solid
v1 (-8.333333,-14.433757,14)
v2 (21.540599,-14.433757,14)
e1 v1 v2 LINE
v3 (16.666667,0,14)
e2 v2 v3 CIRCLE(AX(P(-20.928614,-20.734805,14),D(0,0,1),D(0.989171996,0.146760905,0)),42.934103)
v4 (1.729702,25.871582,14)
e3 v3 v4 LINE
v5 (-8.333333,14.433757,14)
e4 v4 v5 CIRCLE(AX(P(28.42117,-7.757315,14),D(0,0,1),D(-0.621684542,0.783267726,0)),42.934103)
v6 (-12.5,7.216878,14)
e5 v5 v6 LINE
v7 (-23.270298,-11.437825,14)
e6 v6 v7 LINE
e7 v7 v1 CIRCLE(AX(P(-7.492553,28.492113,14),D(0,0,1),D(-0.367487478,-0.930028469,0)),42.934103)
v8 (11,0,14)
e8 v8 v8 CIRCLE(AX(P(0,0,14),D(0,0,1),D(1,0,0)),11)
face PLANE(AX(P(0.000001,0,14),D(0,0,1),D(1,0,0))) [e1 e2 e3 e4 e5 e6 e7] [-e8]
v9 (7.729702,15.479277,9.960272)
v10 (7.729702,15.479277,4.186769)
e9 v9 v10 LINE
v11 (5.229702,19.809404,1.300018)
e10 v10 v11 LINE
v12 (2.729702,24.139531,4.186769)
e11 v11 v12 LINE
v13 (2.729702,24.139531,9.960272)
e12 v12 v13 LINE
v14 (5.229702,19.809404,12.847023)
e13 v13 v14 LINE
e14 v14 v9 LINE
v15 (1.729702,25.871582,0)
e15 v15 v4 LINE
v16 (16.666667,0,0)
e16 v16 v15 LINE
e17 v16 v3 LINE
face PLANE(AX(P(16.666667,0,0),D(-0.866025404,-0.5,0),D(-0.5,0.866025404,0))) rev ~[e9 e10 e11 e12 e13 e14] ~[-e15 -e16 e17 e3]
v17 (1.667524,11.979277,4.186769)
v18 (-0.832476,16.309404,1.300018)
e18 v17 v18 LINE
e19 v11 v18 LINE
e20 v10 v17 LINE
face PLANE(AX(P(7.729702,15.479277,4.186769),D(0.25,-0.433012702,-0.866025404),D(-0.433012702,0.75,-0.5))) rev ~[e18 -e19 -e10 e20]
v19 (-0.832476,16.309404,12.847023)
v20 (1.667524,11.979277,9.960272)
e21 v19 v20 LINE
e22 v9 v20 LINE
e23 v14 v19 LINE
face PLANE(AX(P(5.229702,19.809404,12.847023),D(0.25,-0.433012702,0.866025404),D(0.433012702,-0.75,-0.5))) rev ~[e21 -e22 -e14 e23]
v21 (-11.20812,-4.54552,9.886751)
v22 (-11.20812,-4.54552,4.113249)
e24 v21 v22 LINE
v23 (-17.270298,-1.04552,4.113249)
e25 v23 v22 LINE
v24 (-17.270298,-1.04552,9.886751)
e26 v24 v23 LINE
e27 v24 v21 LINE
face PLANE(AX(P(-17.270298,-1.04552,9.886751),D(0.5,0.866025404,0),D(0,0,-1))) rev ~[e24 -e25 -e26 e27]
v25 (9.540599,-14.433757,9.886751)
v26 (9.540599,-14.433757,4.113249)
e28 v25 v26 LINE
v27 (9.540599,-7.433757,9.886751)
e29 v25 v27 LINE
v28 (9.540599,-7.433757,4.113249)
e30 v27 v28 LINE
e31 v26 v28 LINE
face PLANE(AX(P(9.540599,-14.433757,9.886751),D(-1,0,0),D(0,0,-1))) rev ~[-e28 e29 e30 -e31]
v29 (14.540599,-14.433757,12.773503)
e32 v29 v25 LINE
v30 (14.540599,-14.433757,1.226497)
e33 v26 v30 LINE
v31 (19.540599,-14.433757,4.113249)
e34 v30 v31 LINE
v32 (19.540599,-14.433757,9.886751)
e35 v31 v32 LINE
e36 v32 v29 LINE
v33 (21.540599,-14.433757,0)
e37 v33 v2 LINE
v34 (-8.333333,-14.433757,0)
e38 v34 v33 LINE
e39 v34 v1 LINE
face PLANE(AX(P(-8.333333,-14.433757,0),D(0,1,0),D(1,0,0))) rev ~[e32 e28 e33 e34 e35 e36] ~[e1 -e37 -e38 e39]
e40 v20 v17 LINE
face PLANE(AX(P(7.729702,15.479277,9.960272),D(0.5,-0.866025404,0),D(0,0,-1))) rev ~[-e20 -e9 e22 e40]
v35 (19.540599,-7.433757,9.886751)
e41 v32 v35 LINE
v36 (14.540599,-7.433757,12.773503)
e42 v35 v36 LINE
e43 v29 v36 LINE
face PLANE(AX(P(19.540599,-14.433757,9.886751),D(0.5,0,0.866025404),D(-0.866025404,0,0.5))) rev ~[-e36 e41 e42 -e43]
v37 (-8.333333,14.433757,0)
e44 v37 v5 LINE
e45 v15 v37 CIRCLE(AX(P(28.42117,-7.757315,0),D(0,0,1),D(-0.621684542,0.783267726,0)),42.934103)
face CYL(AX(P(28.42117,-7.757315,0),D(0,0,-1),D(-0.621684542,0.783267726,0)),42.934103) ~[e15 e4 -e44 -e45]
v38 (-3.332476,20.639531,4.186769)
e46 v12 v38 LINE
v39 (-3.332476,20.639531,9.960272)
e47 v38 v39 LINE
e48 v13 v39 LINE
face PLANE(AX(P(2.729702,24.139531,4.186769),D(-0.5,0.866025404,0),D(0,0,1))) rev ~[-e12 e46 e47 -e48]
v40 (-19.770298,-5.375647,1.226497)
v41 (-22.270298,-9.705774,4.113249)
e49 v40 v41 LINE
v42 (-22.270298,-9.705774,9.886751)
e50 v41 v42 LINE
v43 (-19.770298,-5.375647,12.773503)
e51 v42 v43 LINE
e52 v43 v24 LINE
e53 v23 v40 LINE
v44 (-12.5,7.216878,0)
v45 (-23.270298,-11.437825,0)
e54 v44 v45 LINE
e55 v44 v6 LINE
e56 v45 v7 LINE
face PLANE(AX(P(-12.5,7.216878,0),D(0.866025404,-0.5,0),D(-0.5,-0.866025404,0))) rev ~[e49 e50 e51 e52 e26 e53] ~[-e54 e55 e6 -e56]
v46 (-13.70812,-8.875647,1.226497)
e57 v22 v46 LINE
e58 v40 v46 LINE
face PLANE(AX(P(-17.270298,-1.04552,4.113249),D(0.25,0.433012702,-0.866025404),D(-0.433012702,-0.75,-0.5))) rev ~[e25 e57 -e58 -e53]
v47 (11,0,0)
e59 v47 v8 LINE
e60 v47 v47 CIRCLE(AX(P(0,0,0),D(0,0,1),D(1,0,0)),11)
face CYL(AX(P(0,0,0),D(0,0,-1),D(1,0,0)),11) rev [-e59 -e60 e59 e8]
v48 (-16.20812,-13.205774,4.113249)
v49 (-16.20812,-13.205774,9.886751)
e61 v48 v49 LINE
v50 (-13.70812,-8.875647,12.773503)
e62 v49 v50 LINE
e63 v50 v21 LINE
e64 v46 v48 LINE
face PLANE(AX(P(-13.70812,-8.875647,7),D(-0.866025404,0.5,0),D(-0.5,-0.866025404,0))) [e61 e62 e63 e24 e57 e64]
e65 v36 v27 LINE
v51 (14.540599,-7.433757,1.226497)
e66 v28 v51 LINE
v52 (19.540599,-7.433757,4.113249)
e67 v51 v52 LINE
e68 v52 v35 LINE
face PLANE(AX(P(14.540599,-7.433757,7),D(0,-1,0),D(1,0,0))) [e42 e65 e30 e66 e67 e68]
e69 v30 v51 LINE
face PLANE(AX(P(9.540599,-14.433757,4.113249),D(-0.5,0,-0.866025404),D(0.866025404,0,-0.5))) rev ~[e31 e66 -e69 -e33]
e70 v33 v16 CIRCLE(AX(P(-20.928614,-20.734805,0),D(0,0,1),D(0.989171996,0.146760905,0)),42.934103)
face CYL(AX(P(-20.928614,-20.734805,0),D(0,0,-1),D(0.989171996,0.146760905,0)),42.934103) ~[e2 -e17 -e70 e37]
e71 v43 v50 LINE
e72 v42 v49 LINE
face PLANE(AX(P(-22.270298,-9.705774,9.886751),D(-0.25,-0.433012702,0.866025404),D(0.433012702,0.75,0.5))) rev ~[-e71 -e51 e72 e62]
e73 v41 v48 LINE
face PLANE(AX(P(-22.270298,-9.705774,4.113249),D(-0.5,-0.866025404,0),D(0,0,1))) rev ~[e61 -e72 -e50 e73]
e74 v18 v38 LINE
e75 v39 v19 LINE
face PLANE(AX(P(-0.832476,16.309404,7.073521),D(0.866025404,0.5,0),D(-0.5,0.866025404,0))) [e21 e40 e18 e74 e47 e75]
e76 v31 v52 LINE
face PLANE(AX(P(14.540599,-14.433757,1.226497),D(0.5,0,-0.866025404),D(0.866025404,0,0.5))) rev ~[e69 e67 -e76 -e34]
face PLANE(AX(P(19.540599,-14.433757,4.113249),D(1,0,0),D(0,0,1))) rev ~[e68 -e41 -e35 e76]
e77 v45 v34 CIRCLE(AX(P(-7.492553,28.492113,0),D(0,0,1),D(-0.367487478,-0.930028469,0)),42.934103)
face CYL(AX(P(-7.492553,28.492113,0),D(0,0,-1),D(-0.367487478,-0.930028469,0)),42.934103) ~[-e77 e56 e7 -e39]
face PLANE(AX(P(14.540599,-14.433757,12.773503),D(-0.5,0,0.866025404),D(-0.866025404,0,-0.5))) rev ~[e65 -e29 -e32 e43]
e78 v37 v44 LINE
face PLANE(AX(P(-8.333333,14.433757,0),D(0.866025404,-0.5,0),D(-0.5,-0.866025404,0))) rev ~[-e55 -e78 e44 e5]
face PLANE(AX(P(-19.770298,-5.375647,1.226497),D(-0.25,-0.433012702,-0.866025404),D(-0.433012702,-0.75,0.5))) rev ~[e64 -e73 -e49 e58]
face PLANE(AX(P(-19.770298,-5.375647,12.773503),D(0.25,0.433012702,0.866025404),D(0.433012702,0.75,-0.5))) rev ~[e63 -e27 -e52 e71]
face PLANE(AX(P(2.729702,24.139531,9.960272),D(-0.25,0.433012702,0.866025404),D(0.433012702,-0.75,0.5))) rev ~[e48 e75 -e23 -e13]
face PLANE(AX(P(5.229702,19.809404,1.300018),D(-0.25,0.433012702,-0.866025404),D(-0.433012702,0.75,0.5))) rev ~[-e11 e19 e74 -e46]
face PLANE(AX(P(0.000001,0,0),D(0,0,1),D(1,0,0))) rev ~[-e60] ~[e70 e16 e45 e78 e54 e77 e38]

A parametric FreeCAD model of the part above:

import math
import FreeCAD as App
import Part
import Sketcher
from FreeCAD import Vector
Q = App.Units.Quantity


def add_polygon(sketch, points):
    """Adds a closed chain of lines whose ends are joined by coincident constraints."""
    first, n = sketch.GeometryCount, len(points)
    for a, b in zip(points, points[1:] + points[:1]):
        sketch.addGeometry(Part.LineSegment(App.Vector(*a, 0), App.Vector(*b, 0)), False)
    for i in range(n):
        sketch.addConstraint(Sketcher.Constraint("Coincident", first + i, 2, first + (i + 1) % n, 1))

doc = App.newDocument("Part")
params = doc.addObject("Spreadsheet::Sheet", "Params")
for row, (alias, value) in enumerate([
    ("sketch1_diameter", "22 mm"),
    ("pad1_length", "14 mm"),
    ("pocket1_length", "7 mm"),
    ("pocket2_length", "7 mm"),
    ("pocket3_length", "7 mm"),
], start=1):
    params.set(f"A{row}", alias)
    params.set(f"B{row}", "=" + value)
    params.setAlias(f"B{row}", alias)

body = doc.addObject("PartDesign::Body", "Body")

sketch1 = body.newObject("Sketcher::SketchObject", "Sketch")
sketch1.AttachmentSupport = (doc.getObject("XY_Plane"), [""])
sketch1.MapMode = "FlatFace"
sketch1.addGeometry([
    Part.ArcOfCircle(Part.Circle(Vector(-21, -21, 0), Vector(0, 0, 1), 43), math.radians(8), math.radians(29)),
    Part.LineSegment(Vector(17, 0, 0), Vector(2, 26, 0)),
    Part.ArcOfCircle(Part.Circle(Vector(28, -8, 0), Vector(0, 0, 1), 43), math.radians(128), math.radians(149)),
    Part.LineSegment(Vector(-8, 14, 0), Vector(-12, 7, 0)),
    Part.LineSegment(Vector(-12, 7, 0), Vector(-23, -11, 0)),
    Part.ArcOfCircle(Part.Circle(Vector(-7, 28, 0), Vector(0, 0, 1), 43), math.radians(-112), math.radians(-91)),
    Part.LineSegment(Vector(-8, -14, 0), Vector(22, -14, 0)),
    Part.Circle(Vector(0, 0, 0), Vector(0, 0, 1), 11),
], False)
sketch1.addConstraint([
    Sketcher.Constraint("Coincident", 0, 2, 1, 1),
    Sketcher.Constraint("Coincident", 1, 2, 2, 1),
    Sketcher.Constraint("Coincident", 2, 2, 3, 1),
    Sketcher.Constraint("Coincident", 3, 2, 4, 1),
    Sketcher.Constraint("Coincident", 4, 2, 5, 1),
    Sketcher.Constraint("Coincident", 5, 2, 6, 1),
    Sketcher.Constraint("Coincident", 6, 2, 0, 1),
    Sketcher.Constraint("Horizontal", 6),
    Sketcher.Constraint("Coincident", 7, 3, -1, 1),
    Sketcher.Constraint("Equal", 0, 2),
    Sketcher.Constraint("Equal", 2, 5),
    Sketcher.Constraint("Symmetric", 2, 2, 5, 2, -1),
    Sketcher.Constraint("PointOnObject", 0, 2, -1),
    Sketcher.Constraint("Parallel", 3, 4),
    Sketcher.Constraint("Diameter", 7, 22.0),
    Sketcher.Constraint("Angle", 1, Q("120 deg")),
    Sketcher.Constraint("Angle", 3, Q("-120 deg")),
    Sketcher.Constraint("DistanceX", 2, 2, 0, 2, 25.0),
    Sketcher.Constraint("DistanceX", 3, 2, -1, 1, 12.5),
    Sketcher.Constraint("Radius", 0, 42.934103),
    Sketcher.Constraint("DistanceX", -1, 1, 1, 2, 1.729702),
    Sketcher.Constraint("DistanceX", 4, 2, -1, 1, 23.270298),
    Sketcher.Constraint("DistanceX", -1, 1, 6, 2, 21.540599),
    Sketcher.Constraint("Distance", 1, 29.87393),
    Sketcher.Constraint("DistanceX", -1, 1, 2, 3, 28.42117),
])
sketch1.setExpression("Constraints[14]", "Params.sketch1_diameter")
pad1 = body.newObject("PartDesign::Pad", "Pad")
pad1.Profile = sketch1
pad1.setExpression("Length", "Params.pad1_length")

sketch2 = body.newObject("Sketcher::SketchObject", "Sketch001")
sketch2.Placement = App.Placement(Vector(12.5, 7.216878, 0), App.Rotation(Vector(-0.5, 0.866025404, 0), Vector(0, 0, 1), Vector(0.866025404, 0.5, 0), "ZXY"))
add_polygon(sketch2, [(20, 4), (20, 10), (15, 13), (10, 10), (10, 4), (15, 1)])
sketch2.addConstraint([
    Sketcher.Constraint("Vertical", 0),
    Sketcher.Constraint("Vertical", 3),
    Sketcher.Constraint("Parallel", 1, 4),
    Sketcher.Constraint("Parallel", 2, 5),
    Sketcher.Constraint("Horizontal", 0, 2, 2, 2),
    Sketcher.Constraint("Horizontal", 3, 2, 5, 2),
    Sketcher.Constraint("Vertical", 1, 2, 4, 2),
    Sketcher.Constraint("Angle", 1, Q("150 deg")),
    Sketcher.Constraint("DistanceX", 1, 2, 0, 2, 5.0),
    Sketcher.Constraint("DistanceY", 0, 1, 0, 2, 5.773503),
    Sketcher.Constraint("DistanceY", -1, 1, 3, 2, 4.186769),
    Sketcher.Constraint("DistanceX", -1, 1, 0, 2, 19.540596),
])
pocket1 = body.newObject("PartDesign::Pocket", "Pocket")
pocket1.Profile = sketch2
pocket1.setExpression("Length", "Params.pocket1_length")

sketch3 = body.newObject("Sketcher::SketchObject", "Sketch002")
sketch3.AttachmentSupport = (doc.getObject("XZ_Plane"), [""])
sketch3.MapMode = "FlatFace"
sketch3.AttachmentOffset = App.Placement(Vector(0, 0, 14.433757), App.Rotation())
add_polygon(sketch3, [(20, 4), (20, 10), (15, 13), (10, 10), (10, 4), (15, 1)])
sketch3.addConstraint([
    Sketcher.Constraint("Vertical", 0),
    Sketcher.Constraint("Vertical", 3),
    Sketcher.Constraint("Parallel", 1, 4),
    Sketcher.Constraint("Parallel", 2, 5),
    Sketcher.Constraint("Horizontal", 0, 2, 2, 2),
    Sketcher.Constraint("Horizontal", 3, 2, 5, 2),
    Sketcher.Constraint("Vertical", 1, 2, 4, 2),
    Sketcher.Constraint("Angle", 1, Q("150 deg")),
    Sketcher.Constraint("DistanceX", 1, 2, 0, 2, 5.0),
    Sketcher.Constraint("DistanceX", -1, 1, 0, 2, 19.540599),
    Sketcher.Constraint("DistanceY", 0, 1, 0, 2, 5.773503),
    Sketcher.Constraint("DistanceY", -1, 1, 0, 2, 9.886751),
])
pocket2 = body.newObject("PartDesign::Pocket", "Pocket001")
pocket2.Profile = sketch3
pocket2.setExpression("Length", "Params.pocket2_length")

sketch4 = body.newObject("Sketcher::SketchObject", "Sketch003")
sketch4.Placement = App.Placement(Vector(-12.5, 7.216878, 0), App.Rotation(Vector(-0.5, -0.866025404, 0), Vector(0, 0, 1), Vector(-0.866025404, 0.5, 0), "ZXY"))
add_polygon(sketch4, [(20, 4), (20, 10), (15, 13), (10, 10), (10, 4), (15, 1)])
sketch4.addConstraint([
    Sketcher.Constraint("Vertical", 0),
    Sketcher.Constraint("Vertical", 3),
    Sketcher.Constraint("Parallel", 1, 4),
    Sketcher.Constraint("Parallel", 2, 5),
    Sketcher.Constraint("Horizontal", 0, 2, 2, 2),
    Sketcher.Constraint("Horizontal", 3, 2, 5, 2),
    Sketcher.Constraint("Vertical", 1, 2, 4, 2),
    Sketcher.Constraint("Angle", 1, Q("150 deg")),
    Sketcher.Constraint("DistanceX", 1, 2, 0, 2, 5.0),
    Sketcher.Constraint("DistanceY", 0, 1, 0, 2, 5.773503),
    Sketcher.Constraint("DistanceY", -1, 1, 0, 2, 9.886751),
    Sketcher.Constraint("DistanceX", -1, 1, 0, 2, 19.540596),
])
pocket3 = body.newObject("PartDesign::Pocket", "Pocket002")
pocket3.Profile = sketch4
pocket3.setExpression("Length", "Params.pocket3_length")

doc.recompute()
